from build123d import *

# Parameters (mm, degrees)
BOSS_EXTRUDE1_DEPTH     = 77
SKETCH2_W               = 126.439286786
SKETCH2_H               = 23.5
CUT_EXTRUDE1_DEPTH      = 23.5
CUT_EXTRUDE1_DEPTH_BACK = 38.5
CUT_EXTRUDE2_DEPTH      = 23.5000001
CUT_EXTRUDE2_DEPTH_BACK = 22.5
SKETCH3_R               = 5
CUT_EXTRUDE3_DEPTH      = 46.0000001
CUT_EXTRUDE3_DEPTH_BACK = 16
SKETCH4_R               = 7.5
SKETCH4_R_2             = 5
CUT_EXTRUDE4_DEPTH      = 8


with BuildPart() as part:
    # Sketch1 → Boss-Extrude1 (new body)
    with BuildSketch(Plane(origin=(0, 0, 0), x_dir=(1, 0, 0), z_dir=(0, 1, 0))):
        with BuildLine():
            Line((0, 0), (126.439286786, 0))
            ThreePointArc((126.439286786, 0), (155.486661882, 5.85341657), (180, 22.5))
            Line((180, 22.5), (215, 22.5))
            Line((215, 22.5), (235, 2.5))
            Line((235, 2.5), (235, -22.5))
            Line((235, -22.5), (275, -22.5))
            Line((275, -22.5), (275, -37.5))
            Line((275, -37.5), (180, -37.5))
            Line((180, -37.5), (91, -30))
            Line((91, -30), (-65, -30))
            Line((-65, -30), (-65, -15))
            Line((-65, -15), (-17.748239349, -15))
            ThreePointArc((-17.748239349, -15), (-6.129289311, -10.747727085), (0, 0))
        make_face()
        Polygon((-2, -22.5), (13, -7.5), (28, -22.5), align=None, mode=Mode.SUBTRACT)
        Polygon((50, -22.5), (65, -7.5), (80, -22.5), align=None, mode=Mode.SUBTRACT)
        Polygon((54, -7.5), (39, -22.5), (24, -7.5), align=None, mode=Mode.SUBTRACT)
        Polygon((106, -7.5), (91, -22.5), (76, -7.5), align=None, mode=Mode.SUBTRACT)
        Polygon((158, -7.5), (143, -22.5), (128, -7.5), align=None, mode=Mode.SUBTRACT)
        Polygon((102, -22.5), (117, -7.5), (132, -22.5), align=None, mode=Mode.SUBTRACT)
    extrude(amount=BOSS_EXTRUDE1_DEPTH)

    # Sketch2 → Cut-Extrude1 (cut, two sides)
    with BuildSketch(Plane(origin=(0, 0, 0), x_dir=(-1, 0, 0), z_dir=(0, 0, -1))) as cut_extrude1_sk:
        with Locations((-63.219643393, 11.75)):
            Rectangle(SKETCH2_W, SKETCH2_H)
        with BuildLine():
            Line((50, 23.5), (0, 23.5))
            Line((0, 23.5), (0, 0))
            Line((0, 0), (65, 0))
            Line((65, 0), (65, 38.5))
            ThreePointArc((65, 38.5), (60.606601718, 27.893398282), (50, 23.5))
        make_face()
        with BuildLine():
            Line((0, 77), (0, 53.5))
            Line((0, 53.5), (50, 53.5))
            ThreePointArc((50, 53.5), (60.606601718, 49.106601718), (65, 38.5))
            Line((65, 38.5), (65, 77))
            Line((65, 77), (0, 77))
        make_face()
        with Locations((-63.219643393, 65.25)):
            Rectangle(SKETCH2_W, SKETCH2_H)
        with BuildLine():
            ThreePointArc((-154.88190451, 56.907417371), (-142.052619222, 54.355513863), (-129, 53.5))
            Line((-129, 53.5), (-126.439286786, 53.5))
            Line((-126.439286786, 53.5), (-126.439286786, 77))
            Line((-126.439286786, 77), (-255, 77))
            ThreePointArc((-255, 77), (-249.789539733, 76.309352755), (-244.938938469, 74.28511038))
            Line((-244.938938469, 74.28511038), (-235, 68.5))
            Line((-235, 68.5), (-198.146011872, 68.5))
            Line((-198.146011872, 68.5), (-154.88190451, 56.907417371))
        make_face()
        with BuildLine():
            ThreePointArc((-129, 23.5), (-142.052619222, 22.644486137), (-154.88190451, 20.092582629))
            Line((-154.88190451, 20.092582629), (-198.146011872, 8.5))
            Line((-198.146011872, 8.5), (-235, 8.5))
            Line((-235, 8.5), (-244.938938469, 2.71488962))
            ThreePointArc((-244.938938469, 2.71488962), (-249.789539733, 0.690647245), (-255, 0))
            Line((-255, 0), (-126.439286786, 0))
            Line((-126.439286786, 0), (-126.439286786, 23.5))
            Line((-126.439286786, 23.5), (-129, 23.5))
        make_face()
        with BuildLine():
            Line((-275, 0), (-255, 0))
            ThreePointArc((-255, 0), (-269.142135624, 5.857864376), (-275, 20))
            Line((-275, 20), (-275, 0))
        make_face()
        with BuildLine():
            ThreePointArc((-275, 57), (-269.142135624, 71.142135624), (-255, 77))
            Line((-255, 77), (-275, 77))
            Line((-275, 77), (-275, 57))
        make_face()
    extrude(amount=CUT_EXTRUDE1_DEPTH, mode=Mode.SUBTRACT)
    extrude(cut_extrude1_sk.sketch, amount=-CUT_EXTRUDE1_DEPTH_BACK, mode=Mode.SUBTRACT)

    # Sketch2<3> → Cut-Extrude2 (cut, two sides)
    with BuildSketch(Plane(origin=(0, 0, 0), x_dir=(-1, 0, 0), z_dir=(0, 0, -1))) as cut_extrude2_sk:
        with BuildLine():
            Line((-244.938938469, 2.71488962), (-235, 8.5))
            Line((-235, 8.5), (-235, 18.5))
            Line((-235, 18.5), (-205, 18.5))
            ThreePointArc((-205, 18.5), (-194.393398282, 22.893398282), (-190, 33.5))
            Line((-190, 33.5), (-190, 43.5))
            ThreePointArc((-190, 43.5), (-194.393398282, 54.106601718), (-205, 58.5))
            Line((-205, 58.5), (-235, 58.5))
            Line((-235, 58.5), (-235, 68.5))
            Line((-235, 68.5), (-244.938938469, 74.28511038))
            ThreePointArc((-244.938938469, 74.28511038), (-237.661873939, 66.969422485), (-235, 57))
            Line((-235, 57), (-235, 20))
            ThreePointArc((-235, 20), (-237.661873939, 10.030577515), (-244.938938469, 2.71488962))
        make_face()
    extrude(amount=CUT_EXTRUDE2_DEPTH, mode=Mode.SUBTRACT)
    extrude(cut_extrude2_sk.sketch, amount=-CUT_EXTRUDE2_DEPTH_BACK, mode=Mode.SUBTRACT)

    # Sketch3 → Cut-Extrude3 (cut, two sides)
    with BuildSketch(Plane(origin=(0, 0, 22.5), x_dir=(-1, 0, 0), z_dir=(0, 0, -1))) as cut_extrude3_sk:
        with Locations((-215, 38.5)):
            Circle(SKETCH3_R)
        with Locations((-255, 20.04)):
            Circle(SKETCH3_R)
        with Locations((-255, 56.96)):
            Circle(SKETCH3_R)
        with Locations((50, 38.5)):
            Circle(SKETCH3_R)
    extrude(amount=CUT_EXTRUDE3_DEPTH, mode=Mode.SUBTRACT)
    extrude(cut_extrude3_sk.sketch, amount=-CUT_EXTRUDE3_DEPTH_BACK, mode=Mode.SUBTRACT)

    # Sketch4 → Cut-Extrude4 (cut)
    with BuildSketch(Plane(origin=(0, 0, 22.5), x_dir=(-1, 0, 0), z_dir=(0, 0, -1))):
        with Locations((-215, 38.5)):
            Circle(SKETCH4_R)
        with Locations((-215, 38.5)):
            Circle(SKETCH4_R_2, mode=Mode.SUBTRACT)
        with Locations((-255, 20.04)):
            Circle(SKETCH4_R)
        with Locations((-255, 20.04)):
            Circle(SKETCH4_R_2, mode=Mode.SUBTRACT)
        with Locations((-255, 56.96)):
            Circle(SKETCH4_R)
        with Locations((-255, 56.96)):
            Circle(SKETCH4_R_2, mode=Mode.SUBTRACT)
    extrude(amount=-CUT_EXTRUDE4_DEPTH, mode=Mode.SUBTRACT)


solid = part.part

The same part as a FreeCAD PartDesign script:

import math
import FreeCAD as App
import Part
import Sketcher

V = App.Vector
Q = App.Units.Quantity

doc = App.newDocument("Part")
body = doc.addObject("PartDesign::Body", "Body")

sketch1 = body.newObject("Sketcher::SketchObject", "Sketch")
sketch1.AttachmentSupport = (doc.getObject("XZ_Plane"), [""])
sketch1.MapMode = "FlatFace"
sketch1.addGeometry([
    Part.LineSegment(V(126, 0, 0), V(0, 0, 0)),
    Part.ArcOfCircle(Part.Circle(V(-18, -3, 0), V(0, 0, 1), 18), math.radians(10), math.radians(90)),
    Part.LineSegment(V(-18, 15, 0), V(-65, 15, 0)),
    Part.LineSegment(V(-65, 15, 0), V(-65, 30, 0)),
    Part.LineSegment(V(-65, 30, 0), V(91, 30, 0)),
    Part.LineSegment(V(91, 30, 0), V(180, 38, 0)),
    Part.LineSegment(V(180, 38, 0), V(275, 38, 0)),
    Part.LineSegment(V(275, 38, 0), V(275, 22, 0)),
    Part.LineSegment(V(275, 22, 0), V(235, 22, 0)),
    Part.LineSegment(V(235, 22, 0), V(235, -2, 0)),
    Part.LineSegment(V(235, -2, 0), V(215, -22, 0)),
    Part.LineSegment(V(215, -22, 0), V(180, -22, 0)),
    Part.ArcOfCircle(Part.Circle(V(126, -75, 0), V(0, 0, 1), 75), math.radians(44), math.radians(90)),
    Part.LineSegment(V(158, 8, 0), V(143, 22, 0)),
    Part.LineSegment(V(143, 22, 0), V(128, 8, 0)),
    Part.LineSegment(V(128, 8, 0), V(158, 8, 0)),
    Part.LineSegment(V(102, 22, 0), V(117, 8, 0)),
    Part.LineSegment(V(117, 8, 0), V(132, 22, 0)),
    Part.LineSegment(V(132, 22, 0), V(102, 22, 0)),
    Part.LineSegment(V(106, 8, 0), V(91, 22, 0)),
    Part.LineSegment(V(91, 22, 0), V(76, 8, 0)),
    Part.LineSegment(V(76, 8, 0), V(106, 8, 0)),
    Part.LineSegment(V(50, 22, 0), V(65, 8, 0)),
    Part.LineSegment(V(65, 8, 0), V(80, 22, 0)),
    Part.LineSegment(V(80, 22, 0), V(50, 22, 0)),
    Part.LineSegment(V(54, 8, 0), V(39, 22, 0)),
    Part.LineSegment(V(39, 22, 0), V(24, 8, 0)),
    Part.LineSegment(V(24, 8, 0), V(54, 8, 0)),
    Part.LineSegment(V(-2, 22, 0), V(13, 8, 0)),
    Part.LineSegment(V(13, 8, 0), V(28, 22, 0)),
    Part.LineSegment(V(28, 22, 0), V(-2, 22, 0)),
], False)
sketch1.addConstraint([
    Sketcher.Constraint("Coincident", 0, 2, 1, 1),
    Sketcher.Constraint("Tangent", 1, 2, 2, 1),
    Sketcher.Constraint("Coincident", 2, 2, 3, 1),
    Sketcher.Constraint("Coincident", 3, 2, 4, 1),
    Sketcher.Constraint("Coincident", 4, 2, 5, 1),
    Sketcher.Constraint("Coincident", 5, 2, 6, 1),
    Sketcher.Constraint("Coincident", 6, 2, 7, 1),
    Sketcher.Constraint("Coincident", 7, 2, 8, 1),
    Sketcher.Constraint("Coincident", 8, 2, 9, 1),
    Sketcher.Constraint("Coincident", 9, 2, 10, 1),
    Sketcher.Constraint("Coincident", 10, 2, 11, 1),
    Sketcher.Constraint("Coincident", 11, 2, 12, 1),
    Sketcher.Constraint("Tangent", 12, 2, 0, 1),
    Sketcher.Constraint("Coincident", 13, 2, 14, 1),
    Sketcher.Constraint("Coincident", 14, 2, 15, 1),
    Sketcher.Constraint("Coincident", 15, 2, 13, 1),
    Sketcher.Constraint("Coincident", 16, 2, 17, 1),
    Sketcher.Constraint("Coincident", 17, 2, 18, 1),
    Sketcher.Constraint("Coincident", 18, 2, 16, 1),
    Sketcher.Constraint("Coincident", 19, 2, 20, 1),
    Sketcher.Constraint("Coincident", 20, 2, 21, 1),
    Sketcher.Constraint("Coincident", 21, 2, 19, 1),
    Sketcher.Constraint("Coincident", 22, 2, 23, 1),
    Sketcher.Constraint("Coincident", 23, 2, 24, 1),
    Sketcher.Constraint("Coincident", 24, 2, 22, 1),
    Sketcher.Constraint("Coincident", 25, 2, 26, 1),
    Sketcher.Constraint("Coincident", 26, 2, 27, 1),
    Sketcher.Constraint("Coincident", 27, 2, 25, 1),
    Sketcher.Constraint("Coincident", 28, 2, 29, 1),
    Sketcher.Constraint("Coincident", 29, 2, 30, 1),
    Sketcher.Constraint("Coincident", 30, 2, 28, 1),
    Sketcher.Constraint("Horizontal", 0),
    Sketcher.Constraint("Horizontal", 2),
    Sketcher.Constraint("Vertical", 3),
    Sketcher.Constraint("Horizontal", 4),
    Sketcher.Constraint("Horizontal", 6),
    Sketcher.Constraint("Vertical", 7),
    Sketcher.Constraint("Horizontal", 8),
    Sketcher.Constraint("Vertical", 9),
    Sketcher.Constraint("Horizontal", 11),
    Sketcher.Constraint("Horizontal", 15),
    Sketcher.Constraint("Horizontal", 18),
    Sketcher.Constraint("Horizontal", 21),
    Sketcher.Constraint("Horizontal", 24),
    Sketcher.Constraint("Horizontal", 27),
    Sketcher.Constraint("Horizontal", 30),
    Sketcher.Constraint("Coincident", 0, 2, -1, 1),
    Sketcher.Constraint("Perpendicular", 10, 13),
    Sketcher.Constraint("Perpendicular", 13, 14),
    Sketcher.Constraint("Perpendicular", 14, 16),
    Sketcher.Constraint("Perpendicular", 16, 17),
    Sketcher.Constraint("Perpendicular", 17, 19),
    Sketcher.Constraint("Perpendicular", 19, 20),
    Sketcher.Constraint("Perpendicular", 20, 22),
    Sketcher.Constraint("Perpendicular", 22, 23),
    Sketcher.Constraint("Perpendicular", 23, 25),
    Sketcher.Constraint("Perpendicular", 25, 26),
    Sketcher.Constraint("Perpendicular", 26, 28),
    Sketcher.Constraint("Perpendicular", 28, 29),
    Sketcher.Constraint("Horizontal", 8, 2, 13, 2),
    Sketcher.Constraint("Horizontal", 15, 2, 16, 2),
    Sketcher.Constraint("Horizontal", 13, 2, 17, 2),
    Sketcher.Constraint("Horizontal", 18, 2, 19, 2),
    Sketcher.Constraint("Horizontal", 16, 2, 20, 2),
    Sketcher.Constraint("Horizontal", 21, 2, 22, 2),
    Sketcher.Constraint("Horizontal", 19, 2, 23, 2),
    Sketcher.Constraint("Horizontal", 24, 2, 25, 2),
    Sketcher.Constraint("Horizontal", 22, 2, 26, 2),
    Sketcher.Constraint("Horizontal", 27, 2, 28, 2),
    Sketcher.Constraint("Horizontal", 25, 2, 29, 2),
    Sketcher.Constraint("Vertical", 5, 2, 11, 2),
    Sketcher.Constraint("Vertical", 4, 2, 19, 2),
    Sketcher.Constraint("Equal", 3, 7),
    Sketcher.Constraint("Equal", 13, 14),
    Sketcher.Constraint("Radius", 1, Q("18 mm")),
    Sketcher.Constraint("Radius", 12, Q("75 mm")),
    Sketcher.Constraint("DistanceX", 4, 1, 4, 2, Q("156 mm")),
    Sketcher.Constraint("DistanceX", 6, 1, 6, 2, Q("95 mm")),
    Sketcher.Constraint("DistanceX", 8, 2, 8, 1, Q("40 mm")),
    Sketcher.Constraint("DistanceX", 11, 2, 11, 1, Q("35 mm")),
    Sketcher.Constraint("DistanceX", 15, 1, 15, 2, Q("30 mm")),
    Sketcher.Constraint("DistanceY", 3, 1, 3, 2, Q("15 mm")),
    Sketcher.Constraint("DistanceY", 9, 2, 9, 1, Q("25 mm")),
    Sketcher.Constraint("DistanceY", 1, 3, -1, 1, Q("3 mm")),
    Sketcher.Constraint("DistanceX", 2, 2, -1, 1, Q("65 mm")),
    Sketcher.Constraint("DistanceX", -1, 1, 5, 2, Q("180 mm")),
    Sketcher.Constraint("DistanceX", -1, 1, 13, 2, Q("143 mm")),
    Sketcher.Constraint("DistanceX", -1, 1, 16, 2, Q("117 mm")),
    Sketcher.Constraint("DistanceX", -1, 1, 22, 2, Q("65 mm")),
    Sketcher.Constraint("DistanceX", -1, 1, 25, 2, Q("39 mm")),
    Sketcher.Constraint("DistanceX", -1, 1, 28, 2, Q("13 mm")),
    Sketcher.Constraint("DistanceY", -1, 1, 5, 2, Q("37.5 mm")),
])
pad1 = body.newObject("PartDesign::Pad", "Pad")
pad1.Profile = sketch1
pad1.Length = 77
pad1.Reversed = True

sketch2 = body.newObject("Sketcher::SketchObject", "Sketch001")
sketch2.AttachmentSupport = (doc.getObject("XY_Plane"), [""])
sketch2.MapMode = "FlatFace"
sketch2.addGeometry([
    Part.LineSegment(V(-65, 0, 0), V(-65, 38, 0)),
    Part.ArcOfCircle(Part.Circle(V(-50, 38, 0), V(0, 0, 1), 15), math.radians(180), math.radians(270)),
    Part.LineSegment(V(-50, 24, 0), V(129, 24, 0)),
    Part.ArcOfCircle(Part.Circle(V(129, -77, 0), V(0, 0, 1), 100), math.radians(75), math.radians(90)),
    Part.LineSegment(V(155, 20, 0), V(198, 8, 0)),
    Part.LineSegment(V(198, 8, 0), V(235, 8, 0)),
    Part.LineSegment(V(235, 8, 0), V(245, 3, 0)),
    Part.ArcOfCircle(Part.Circle(V(255, 20, 0), V(0, 0, 1), 20), math.radians(-120), math.radians(-90)),
    Part.LineSegment(V(255, 0, 0), V(-65, 0, 0)),
    Part.ArcOfCircle(Part.Circle(V(-50, 39, 0), V(0, 0, 1), 15), math.radians(90), math.radians(180)),
    Part.LineSegment(V(-65, 38, 0), V(-65, 77, 0)),
    Part.LineSegment(V(-65, 77, 0), V(255, 77, 0)),
    Part.ArcOfCircle(Part.Circle(V(255, 57, 0), V(0, 0, 1), 20), math.radians(90), math.radians(120)),
    Part.LineSegment(V(245, 74, 0), V(235, 68, 0)),
    Part.LineSegment(V(235, 68, 0), V(198, 68, 0)),
    Part.LineSegment(V(198, 68, 0), V(155, 57, 0)),
    Part.ArcOfCircle(Part.Circle(V(129, 154, 0), V(0, 0, 1), 100), math.radians(-90), math.radians(-75)),
    Part.LineSegment(V(129, 54, 0), V(-50, 54, 0)),
    Part.LineSegment(V(275, 0, 0), V(255, 0, 0)),
    Part.ArcOfCircle(Part.Circle(V(255, 20, 0), V(0, 0, 1), 20), math.radians(-90), math.radians(0)),
    Part.LineSegment(V(275, 20, 0), V(275, 0, 0)),
    Part.ArcOfCircle(Part.Circle(V(255, 57, 0), V(0, 0, 1), 20), math.radians(0), math.radians(90)),
    Part.LineSegment(V(255, 77, 0), V(275, 77, 0)),
    Part.LineSegment(V(275, 77, 0), V(275, 57, 0)),
], False)
sketch2.addConstraint([
    Sketcher.Constraint("Tangent", 0, 2, 1, 1),
    Sketcher.Constraint("Tangent", 1, 2, 2, 1),
    Sketcher.Constraint("Tangent", 2, 2, 3, 2),
    Sketcher.Constraint("Tangent", 3, 1, 4, 1),
    Sketcher.Constraint("Coincident", 4, 2, 5, 1),
    Sketcher.Constraint("Coincident", 5, 2, 6, 1),
    Sketcher.Constraint("Tangent", 6, 2, 7, 1),
    Sketcher.Constraint("Tangent", 7, 2, 8, 1),
    Sketcher.Constraint("Coincident", 8, 2, 0, 1),
    Sketcher.Constraint("Tangent", 9, 2, 10, 1),
    Sketcher.Constraint("Coincident", 10, 2, 11, 1),
    Sketcher.Constraint("Tangent", 11, 2, 12, 1),
    Sketcher.Constraint("Tangent", 12, 2, 13, 1),
    Sketcher.Constraint("Coincident", 13, 2, 14, 1),
    Sketcher.Constraint("Coincident", 14, 2, 15, 1),
    Sketcher.Constraint("Tangent", 15, 2, 16, 2),
    Sketcher.Constraint("Tangent", 16, 1, 17, 1),
    Sketcher.Constraint("Tangent", 17, 2, 9, 1),
    Sketcher.Constraint("Tangent", 18, 2, 19, 1),
    Sketcher.Constraint("Tangent", 19, 2, 20, 1),
    Sketcher.Constraint("Coincident", 20, 2, 18, 1),
    Sketcher.Constraint("Tangent", 21, 2, 22, 1),
    Sketcher.Constraint("Coincident", 22, 2, 23, 1),
    Sketcher.Constraint("Tangent", 23, 2, 21, 1),
    Sketcher.Constraint("Vertical", 0),
    Sketcher.Constraint("Horizontal", 2),
    Sketcher.Constraint("Horizontal", 5),
    Sketcher.Constraint("Horizontal", 8),
    Sketcher.Constraint("Vertical", 10),
    Sketcher.Constraint("Horizontal", 11),
    Sketcher.Constraint("Horizontal", 14),
    Sketcher.Constraint("Horizontal", 17),
    Sketcher.Constraint("Horizontal", 18),
    Sketcher.Constraint("Vertical", 20),
    Sketcher.Constraint("Horizontal", 22),
    Sketcher.Constraint("Vertical", 23),
    Sketcher.Constraint("Coincident", 9, 3, 1, 3),
    Sketcher.Constraint("Coincident", 19, 3, 7, 3),
    Sketcher.Constraint("Coincident", 21, 3, 12, 3),
    Sketcher.Constraint("Equal", 1, 9),
    Sketcher.Constraint("Equal", 7, 12),
    Sketcher.Constraint("Equal", 3, 16),
    Sketcher.Constraint("Equal", 12, 19),
    Sketcher.Constraint("Equal", 19, 21),
    Sketcher.Constraint("PointOnObject", 7, 2, -1),
    Sketcher.Constraint("Vertical", 7, 3, 12, 3),
    Sketcher.Constraint("Vertical", 3, 3, 16, 3),
    Sketcher.Constraint("Vertical", 6, 2, 12, 2),
    Sketcher.Constraint("Vertical", 5, 2, 13, 2),
    Sketcher.Constraint("Vertical", 4, 2, 14, 2),
    Sketcher.Constraint("Vertical", 3, 1, 15, 2),
    Sketcher.Constraint("Radius", 1, Q("15 mm")),
    Sketcher.Constraint("Radius", 3, Q("100 mm")),
    Sketcher.Constraint("Radius", 7, Q("20 mm")),
    Sketcher.Constraint("DistanceX", 2, 1, 2, 2, Q("179 mm")),
    Sketcher.Constraint("DistanceX", 8, 2, 8, 1, Q("320 mm")),
    Sketcher.Constraint("Angle", 4, Q("-15 deg")),
    Sketcher.Constraint("DistanceY", 0, 1, 0, 2, Q("38.5 mm")),
    Sketcher.Constraint("DistanceX", 1, 3, -1, 1, Q("50 mm")),
    Sketcher.Constraint("DistanceX", -1, 1, 5, 2, Q("235 mm")),
    Sketcher.Constraint("DistanceY", 4, 2, 2, 2, Q("15 mm")),
])
pocket1 = body.newObject("PartDesign::Pocket", "Pocket")
pocket1.Profile = sketch2
pocket1.Type = "ThroughAll"
pocket1.Midplane = True

sketch3 = body.newObject("Sketcher::SketchObject", "Sketch002")
sketch3.AttachmentSupport = (doc.getObject("XY_Plane"), [""])
sketch3.MapMode = "FlatFace"
sketch3.addGeometry([
    Part.LineSegment(V(245, 3, 0), V(235, 8, 0)),
    Part.LineSegment(V(235, 8, 0), V(235, 18, 0)),
    Part.LineSegment(V(235, 18, 0), V(205, 18, 0)),
    Part.ArcOfCircle(Part.Circle(V(205, 33, 0), V(0, 0, 1), 15), math.radians(180), math.radians(270)),
    Part.LineSegment(V(190, 34, 0), V(190, 44, 0)),
    Part.ArcOfCircle(Part.Circle(V(205, 44, 0), V(0, 0, 1), 15), math.radians(90), math.radians(180)),
    Part.LineSegment(V(205, 58, 0), V(235, 58, 0)),
    Part.LineSegment(V(235, 58, 0), V(235, 68, 0)),
    Part.LineSegment(V(235, 68, 0), V(245, 74, 0)),
    Part.ArcOfCircle(Part.Circle(V(255, 57, 0), V(0, 0, 1), 20), math.radians(120), math.radians(180)),
    Part.LineSegment(V(235, 57, 0), V(235, 20, 0)),
    Part.ArcOfCircle(Part.Circle(V(255, 20, 0), V(0, 0, 1), 20), math.radians(180), math.radians(240)),
], False)
sketch3.addConstraint([
    Sketcher.Constraint("Coincident", 0, 2, 1, 1),
    Sketcher.Constraint("Coincident", 1, 2, 2, 1),
    Sketcher.Constraint("Tangent", 2, 2, 3, 2),
    Sketcher.Constraint("Tangent", 3, 1, 4, 1),
    Sketcher.Constraint("Tangent", 4, 2, 5, 2),
    Sketcher.Constraint("Tangent", 5, 1, 6, 1),
    Sketcher.Constraint("Coincident", 6, 2, 7, 1),
    Sketcher.Constraint("Coincident", 7, 2, 8, 1),
    Sketcher.Constraint("Tangent", 8, 2, 9, 1),
    Sketcher.Constraint("Tangent", 9, 2, 10, 1),
    Sketcher.Constraint("Tangent", 10, 2, 11, 1),
    Sketcher.Constraint("Tangent", 11, 2, 0, 1),
    Sketcher.Constraint("Vertical", 1),
    Sketcher.Constraint("Horizontal", 2),
    Sketcher.Constraint("Vertical", 4),
    Sketcher.Constraint("Horizontal", 6),
    Sketcher.Constraint("Vertical", 7),
    Sketcher.Constraint("Vertical", 10),
    Sketcher.Constraint("Equal", 3, 5),
    Sketcher.Constraint("Equal", 9, 11),
    Sketcher.Constraint("Vertical", 1, 2, 6, 2),
    Sketcher.Constraint("Vertical", 7, 2, 9, 2),
    Sketcher.Constraint("Vertical", 8, 2, 11, 2),
    Sketcher.Constraint("Equal", 1, 4),
    Sketcher.Constraint("Equal", 4, 7),
    Sketcher.Constraint("Radius", 3, Q("15 mm")),
    Sketcher.Constraint("Radius", 9, Q("20 mm")),
    Sketcher.Constraint("DistanceX", 2, 2, 2, 1, Q("30 mm")),
    Sketcher.Constraint("DistanceY", 1, 1, 1, 2, Q("10 mm")),
    Sketcher.Constraint("DistanceY", 10, 2, 10, 1, Q("37 mm")),
    Sketcher.Constraint("DistanceX", -1, 1, 3, 3, Q("205 mm")),
    Sketcher.Constraint("DistanceY", -1, 1, 9, 3, Q("57 mm")),
])
pocket2 = body.newObject("PartDesign::Pocket", "Pocket001")
pocket2.Profile = sketch3
pocket2.Type = "TwoLengths"
pocket2.Length = 23.5
pocket2.Length2 = 22.5

sketch4 = body.newObject("Sketcher::SketchObject", "Sketch003")
sketch4.AttachmentSupport = (doc.getObject("XY_Plane"), [""])
sketch4.MapMode = "FlatFace"
sketch4.AttachmentOffset = App.Placement(V(0, 0, 22.5), App.Rotation())
sketch4.addGeometry([
    Part.Circle(V(215, 38, 0), V(0, 0, 1), 5),
    Part.Circle(V(255, 20, 0), V(0, 0, 1), 5),
    Part.Circle(V(255, 57, 0), V(0, 0, 1), 5),
    Part.Circle(V(-50, 38, 0), V(0, 0, 1), 5),
], False)
sketch4.addConstraint([
    Sketcher.Constraint("Equal", 0, 1),
    Sketcher.Constraint("Equal", 1, 2),
    Sketcher.Constraint("Equal", 2, 3),
    Sketcher.Constraint("Horizontal", 0, 3, 3, 3),
    Sketcher.Constraint("Vertical", 1, 3, 2, 3),
    Sketcher.Constraint("Diameter", 0, Q("10 mm")),
    Sketcher.Constraint("DistanceX", -1, 1, 0, 3, Q("215 mm")),
    Sketcher.Constraint("DistanceX", -1, 1, 1, 3, Q("255 mm")),
    Sketcher.Constraint("DistanceX", 3, 3, -1, 1, Q("50 mm")),
    Sketcher.Constraint("DistanceY", -1, 1, 0, 3, Q("38.5 mm")),
    Sketcher.Constraint("DistanceY", -1, 1, 1, 3, Q("20.04 mm")),
    Sketcher.Constraint("DistanceY", -1, 1, 2, 3, Q("56.96 mm")),
])
pocket3 = body.newObject("PartDesign::Pocket", "Pocket002")
pocket3.Profile = sketch4
pocket3.Type = "ThroughAll"
pocket3.Midplane = True

sketch5 = body.newObject("Sketcher::SketchObject", "Sketch004")
sketch5.AttachmentSupport = (doc.getObject("XY_Plane"), [""])
sketch5.MapMode = "FlatFace"
sketch5.AttachmentOffset = App.Placement(V(0, 0, 22.5), App.Rotation())
sketch5.addGeometry([
    Part.Circle(V(215, 38, 0), V(0, 0, 1), 8),
    Part.Circle(V(215, 38, 0), V(0, 0, 1), 5),
    Part.Circle(V(255, 20, 0), V(0, 0, 1), 8),
    Part.Circle(V(255, 20, 0), V(0, 0, 1), 5),
    Part.Circle(V(255, 57, 0), V(0, 0, 1), 8),
    Part.Circle(V(255, 57, 0), V(0, 0, 1), 5),
], False)
sketch5.addConstraint([
    Sketcher.Constraint("Coincident", 1, 3, 0, 3),
    Sketcher.Constraint("Coincident", 3, 3, 2, 3),
    Sketcher.Constraint("Coincident", 5, 3, 4, 3),
    Sketcher.Constraint("Equal", 0, 2),
    Sketcher.Constraint("Equal", 1, 3),
    Sketcher.Constraint("Equal", 2, 4),
    Sketcher.Constraint("Equal", 3, 5),
    Sketcher.Constraint("Vertical", 3, 3, 4, 3),
    Sketcher.Constraint("Diameter", 0, Q("15 mm")),
    Sketcher.Constraint("Diameter", 1, Q("10 mm")),
    Sketcher.Constraint("DistanceX", -1, 1, 0, 3, Q("215 mm")),
    Sketcher.Constraint("DistanceX", -1, 1, 2, 3, Q("255 mm")),
    Sketcher.Constraint("DistanceY", -1, 1, 0, 3, Q("38.5 mm")),
    Sketcher.Constraint("DistanceY", -1, 1, 2, 3, Q("20.04 mm")),
    Sketcher.Constraint("DistanceY", -1, 1, 4, 3, Q("56.96 mm")),
])
pocket4 = body.newObject("PartDesign::Pocket", "Pocket003")
pocket4.Profile = sketch5
pocket4.Length = 8
pocket4.Reversed = True

doc.recompute()
